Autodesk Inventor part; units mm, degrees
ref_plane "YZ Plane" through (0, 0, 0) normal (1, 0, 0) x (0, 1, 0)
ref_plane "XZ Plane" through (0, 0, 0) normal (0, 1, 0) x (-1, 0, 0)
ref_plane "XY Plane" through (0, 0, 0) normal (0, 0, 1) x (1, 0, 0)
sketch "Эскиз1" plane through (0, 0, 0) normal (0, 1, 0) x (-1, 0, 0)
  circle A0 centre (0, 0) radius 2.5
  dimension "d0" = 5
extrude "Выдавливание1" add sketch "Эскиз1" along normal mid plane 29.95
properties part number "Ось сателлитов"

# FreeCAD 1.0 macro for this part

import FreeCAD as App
import Part
import Sketcher

V = App.Vector

doc = App.newDocument("Part")
body = doc.addObject("PartDesign::Body", "Body")

# Sketch on XZ plane
sketch1 = body.newObject("Sketcher::SketchObject", "Sketch")
sketch1.AttachmentSupport = (doc.getObject("XZ_Plane"), [""])
sketch1.MapMode = "FlatFace"
sketch1.addGeometry(Part.Circle(V(0, 0, 0), V(0, 0, 1), 2.5), False)
sketch1.addConstraint(Sketcher.Constraint("Coincident", 0, 3, -1, 1))
sketch1.addConstraint(Sketcher.Constraint("Diameter", 0, 5.0))
pad1 = body.newObject("PartDesign::Pad", "Pad")
pad1.Profile = sketch1
pad1.Length = 29.95
pad1.Midplane = True

doc.recompute()
